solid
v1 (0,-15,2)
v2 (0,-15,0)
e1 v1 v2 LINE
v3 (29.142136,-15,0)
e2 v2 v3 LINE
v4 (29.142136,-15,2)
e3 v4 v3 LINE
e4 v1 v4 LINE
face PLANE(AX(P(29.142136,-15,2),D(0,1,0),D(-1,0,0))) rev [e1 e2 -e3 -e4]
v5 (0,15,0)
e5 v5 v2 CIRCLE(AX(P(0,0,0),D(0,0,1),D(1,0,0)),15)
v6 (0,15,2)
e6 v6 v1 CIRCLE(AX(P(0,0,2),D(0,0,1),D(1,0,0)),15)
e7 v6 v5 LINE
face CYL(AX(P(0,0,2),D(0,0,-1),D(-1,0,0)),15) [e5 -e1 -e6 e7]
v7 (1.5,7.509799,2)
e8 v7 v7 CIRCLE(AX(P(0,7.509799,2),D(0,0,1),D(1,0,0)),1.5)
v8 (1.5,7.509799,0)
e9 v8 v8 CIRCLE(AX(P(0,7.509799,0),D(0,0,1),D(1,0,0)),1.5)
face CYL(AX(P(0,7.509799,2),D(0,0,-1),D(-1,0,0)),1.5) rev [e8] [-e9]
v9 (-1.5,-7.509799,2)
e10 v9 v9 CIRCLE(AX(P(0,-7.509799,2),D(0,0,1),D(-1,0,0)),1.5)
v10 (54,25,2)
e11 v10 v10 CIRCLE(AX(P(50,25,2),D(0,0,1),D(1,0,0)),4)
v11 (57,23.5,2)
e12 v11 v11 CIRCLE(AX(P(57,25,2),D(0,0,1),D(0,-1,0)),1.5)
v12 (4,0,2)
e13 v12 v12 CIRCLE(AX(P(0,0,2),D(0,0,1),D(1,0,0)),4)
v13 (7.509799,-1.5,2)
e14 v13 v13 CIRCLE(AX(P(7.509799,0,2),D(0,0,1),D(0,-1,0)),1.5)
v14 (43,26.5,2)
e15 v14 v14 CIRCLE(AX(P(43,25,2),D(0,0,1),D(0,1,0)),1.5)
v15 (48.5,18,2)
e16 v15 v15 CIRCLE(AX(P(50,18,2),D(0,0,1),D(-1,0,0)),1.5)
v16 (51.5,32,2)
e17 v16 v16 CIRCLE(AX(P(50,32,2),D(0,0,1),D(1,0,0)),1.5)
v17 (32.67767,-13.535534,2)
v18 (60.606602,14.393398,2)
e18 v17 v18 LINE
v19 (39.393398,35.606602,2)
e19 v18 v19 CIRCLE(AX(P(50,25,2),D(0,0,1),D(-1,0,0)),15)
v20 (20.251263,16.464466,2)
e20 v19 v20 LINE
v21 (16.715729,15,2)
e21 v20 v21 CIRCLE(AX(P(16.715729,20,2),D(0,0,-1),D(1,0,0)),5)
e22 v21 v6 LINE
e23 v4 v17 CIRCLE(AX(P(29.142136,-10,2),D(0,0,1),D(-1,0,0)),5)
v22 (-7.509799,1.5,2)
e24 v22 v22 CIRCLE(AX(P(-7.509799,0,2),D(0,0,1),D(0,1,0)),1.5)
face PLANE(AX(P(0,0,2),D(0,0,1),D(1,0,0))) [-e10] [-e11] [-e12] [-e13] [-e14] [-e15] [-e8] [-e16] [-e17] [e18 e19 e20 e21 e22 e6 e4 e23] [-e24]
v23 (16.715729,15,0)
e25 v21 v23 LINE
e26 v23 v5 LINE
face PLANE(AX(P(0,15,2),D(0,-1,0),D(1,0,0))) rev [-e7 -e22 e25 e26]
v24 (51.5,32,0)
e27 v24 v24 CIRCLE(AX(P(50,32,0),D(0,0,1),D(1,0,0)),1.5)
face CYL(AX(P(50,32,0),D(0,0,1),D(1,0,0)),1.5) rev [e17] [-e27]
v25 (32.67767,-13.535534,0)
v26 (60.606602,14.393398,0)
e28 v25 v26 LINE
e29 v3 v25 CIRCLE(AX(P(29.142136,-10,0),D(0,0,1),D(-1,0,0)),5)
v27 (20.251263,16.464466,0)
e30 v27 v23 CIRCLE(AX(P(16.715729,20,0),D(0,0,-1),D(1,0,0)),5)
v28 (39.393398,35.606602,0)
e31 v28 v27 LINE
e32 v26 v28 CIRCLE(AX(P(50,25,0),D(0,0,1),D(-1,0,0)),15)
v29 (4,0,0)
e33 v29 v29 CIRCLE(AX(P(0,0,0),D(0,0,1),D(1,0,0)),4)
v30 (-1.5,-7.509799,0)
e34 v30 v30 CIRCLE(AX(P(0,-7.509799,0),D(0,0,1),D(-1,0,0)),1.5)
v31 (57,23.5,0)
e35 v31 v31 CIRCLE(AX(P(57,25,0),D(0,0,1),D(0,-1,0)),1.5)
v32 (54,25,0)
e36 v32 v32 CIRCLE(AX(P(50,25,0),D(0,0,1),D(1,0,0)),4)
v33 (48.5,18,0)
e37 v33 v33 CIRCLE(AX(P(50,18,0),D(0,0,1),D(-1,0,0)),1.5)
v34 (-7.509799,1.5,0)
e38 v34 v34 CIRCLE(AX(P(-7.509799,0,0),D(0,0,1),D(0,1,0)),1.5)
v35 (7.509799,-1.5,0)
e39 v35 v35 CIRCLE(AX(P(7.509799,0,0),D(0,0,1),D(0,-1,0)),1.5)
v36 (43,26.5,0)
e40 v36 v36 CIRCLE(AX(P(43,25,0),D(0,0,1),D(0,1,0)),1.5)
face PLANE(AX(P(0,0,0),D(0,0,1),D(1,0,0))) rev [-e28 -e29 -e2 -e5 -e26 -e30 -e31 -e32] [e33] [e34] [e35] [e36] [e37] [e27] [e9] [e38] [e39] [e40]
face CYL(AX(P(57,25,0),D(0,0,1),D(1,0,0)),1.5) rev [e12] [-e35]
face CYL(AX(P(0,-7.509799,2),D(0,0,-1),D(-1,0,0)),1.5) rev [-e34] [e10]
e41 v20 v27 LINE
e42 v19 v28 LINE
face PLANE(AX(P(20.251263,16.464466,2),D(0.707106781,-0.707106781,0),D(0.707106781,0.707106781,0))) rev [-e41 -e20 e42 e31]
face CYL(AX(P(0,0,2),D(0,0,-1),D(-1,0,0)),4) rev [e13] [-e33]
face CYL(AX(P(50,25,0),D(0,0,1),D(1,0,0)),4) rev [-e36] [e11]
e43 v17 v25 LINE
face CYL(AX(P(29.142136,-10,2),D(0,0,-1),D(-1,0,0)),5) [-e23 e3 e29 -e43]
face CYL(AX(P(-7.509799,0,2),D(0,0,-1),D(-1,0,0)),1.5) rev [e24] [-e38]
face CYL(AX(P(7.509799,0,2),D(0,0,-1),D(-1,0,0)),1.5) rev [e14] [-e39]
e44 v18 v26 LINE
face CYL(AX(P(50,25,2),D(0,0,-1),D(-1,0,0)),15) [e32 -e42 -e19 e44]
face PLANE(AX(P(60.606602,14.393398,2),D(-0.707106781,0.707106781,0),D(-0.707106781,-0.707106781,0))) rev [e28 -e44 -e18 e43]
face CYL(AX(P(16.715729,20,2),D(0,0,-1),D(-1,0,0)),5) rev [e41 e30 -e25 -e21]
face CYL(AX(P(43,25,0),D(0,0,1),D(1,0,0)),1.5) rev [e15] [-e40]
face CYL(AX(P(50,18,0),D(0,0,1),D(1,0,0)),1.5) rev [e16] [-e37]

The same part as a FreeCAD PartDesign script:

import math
import FreeCAD as App
import Part
import Sketcher
from FreeCAD import Vector
Q = App.Units.Quantity

doc = App.newDocument("Part")
body = doc.addObject("PartDesign::Body", "Body")

# Sketch on XY plane
sketch1 = body.newObject("Sketcher::SketchObject", "Sketch")
sketch1.AttachmentSupport = (doc.getObject("XY_Plane"), [""])
sketch1.MapMode = "FlatFace"
sketch1.addGeometry([
    Part.LineSegment(Vector(16.7, 15, 0), Vector(0, 15, 0)),  # 0
    Part.ArcOfCircle(Part.Circle(Vector(0, 0, 0), Vector(0, 0, 1), 15), math.radians(90), math.radians(270)),  # 1
    Part.LineSegment(Vector(0, -15, 0), Vector(29.1, -15, 0)),  # 2
    Part.ArcOfCircle(Part.Circle(Vector(29.1, -10, 0), Vector(0, 0, 1), 5), math.radians(-90), math.radians(-45)),  # 3
    Part.LineSegment(Vector(32.7, -13.5, 0), Vector(60.6, 14.4, 0)),  # 4
    Part.ArcOfCircle(Part.Circle(Vector(50, 25, 0), Vector(0, 0, 1), 15), math.radians(-45), math.radians(135)),  # 5
    Part.LineSegment(Vector(39.4, 35.6, 0), Vector(20.3, 16.5, 0)),  # 6
    Part.ArcOfCircle(Part.Circle(Vector(16.7, 20, 0), Vector(0, 0, 1), 5), math.radians(-90), math.radians(-45)),  # 7
], False)
sketch1.addConstraint([
    Sketcher.Constraint("Tangent", 0, 2, 1, 1),
    Sketcher.Constraint("Tangent", 1, 2, 2, 1),
    Sketcher.Constraint("Tangent", 2, 2, 3, 1),
    Sketcher.Constraint("Tangent", 3, 2, 4, 1),
    Sketcher.Constraint("Tangent", 4, 2, 5, 1),
    Sketcher.Constraint("Tangent", 5, 2, 6, 1),
    Sketcher.Constraint("Tangent", 6, 2, 7, 2),
    Sketcher.Constraint("Tangent", 7, 1, 0, 1),
    Sketcher.Constraint("Horizontal", 0),
    Sketcher.Constraint("Horizontal", 2),
    Sketcher.Constraint("Coincident", 1, 3, -1, 1),
    Sketcher.Constraint("Equal", 1, 5),
    Sketcher.Constraint("Equal", 3, 7),
    Sketcher.Constraint("Parallel", 4, 6),
    Sketcher.Constraint("Radius", 1, Q("15 mm")),
    Sketcher.Constraint("Radius", 3, Q("5 mm")),
    Sketcher.Constraint("Angle", 4, Q("45 deg")),
    Sketcher.Constraint("DistanceX", -1, 1, 5, 3, Q("50 mm")),
    Sketcher.Constraint("DistanceY", -1, 1, 5, 3, Q("25 mm")),
])
pad1 = body.newObject("PartDesign::Pad", "Pad")
pad1.Profile = sketch1
pad1.Length = 2

# Sketch on XY plane
sketch2 = body.newObject("Sketcher::SketchObject", "Sketch001")
sketch2.AttachmentSupport = (doc.getObject("XY_Plane"), [""])
sketch2.MapMode = "FlatFace"
sketch2.addGeometry(Part.Circle(Vector(0, 0, 0), Vector(0, 0, 1), 4), False)
sketch2.addConstraint([
    Sketcher.Constraint("Coincident", 0, 3, -1, 1),
    Sketcher.Constraint("Diameter", 0, Q("8 mm")),
])
pocket1 = body.newObject("PartDesign::Pocket", "Pocket")
pocket1.Profile = sketch2
pocket1.Length = 2
pocket1.Reversed = True

# Sketch on XY plane
sketch3 = body.newObject("Sketcher::SketchObject", "Sketch002")
sketch3.AttachmentSupport = (doc.getObject("XY_Plane"), [""])
sketch3.MapMode = "FlatFace"
sketch3.addGeometry(Part.Circle(Vector(0, 7.5, 0), Vector(0, 0, 1), 1.5), False)
sketch3.addConstraint([
    Sketcher.Constraint("PointOnObject", 0, 3, -2),
    Sketcher.Constraint("Diameter", 0, Q("3 mm")),
    Sketcher.Constraint("DistanceY", -1, 1, 0, 3, Q("7.509799 mm")),
])
pocket2 = body.newObject("PartDesign::Pocket", "Pocket001")
pocket2.Profile = sketch3
pocket2.Length = 2
pocket2.Reversed = True
doc.recompute()

polarpattern = body.newObject("PartDesign::PolarPattern", "PolarPattern")
polarpattern.Originals = [pocket2]
polarpattern.Axis = (doc.getObject("Z_Axis"), [""])
polarpattern.Angle = 360
polarpattern.Occurrences = 4
body.Tip = polarpattern

# Sketch on XY plane
sketch4 = body.newObject("Sketcher::SketchObject", "Sketch003")
sketch4.AttachmentSupport = (doc.getObject("XY_Plane"), [""])
sketch4.MapMode = "FlatFace"
sketch4.AttachmentOffset = App.Placement(Vector(0, 0, 2), App.Rotation())
sketch4.addGeometry(Part.Circle(Vector(50, 25, 0), Vector(0, 0, 1), 4), False)
sketch4.addConstraint([
    Sketcher.Constraint("Diameter", 0, Q("8 mm")),
    Sketcher.Constraint("DistanceX", -1, 1, 0, 3, Q("50 mm")),
    Sketcher.Constraint("DistanceY", -1, 1, 0, 3, Q("25 mm")),
])
pocket3 = body.newObject("PartDesign::Pocket", "Pocket002")
pocket3.Profile = sketch4
pocket3.Length = 2

# Sketch on XY plane
sketch5 = body.newObject("Sketcher::SketchObject", "Sketch004")
sketch5.AttachmentSupport = (doc.getObject("XY_Plane"), [""])
sketch5.MapMode = "FlatFace"
sketch5.AttachmentOffset = App.Placement(Vector(0, 0, 2), App.Rotation())
sketch5.addGeometry(Part.Circle(Vector(50, 32, 0), Vector(0, 0, 1), 1.5), False)
sketch5.addConstraint([
    Sketcher.Constraint("Diameter", 0, Q("3 mm")),
    Sketcher.Constraint("DistanceX", -1, 1, 0, 3, Q("50 mm")),
    Sketcher.Constraint("DistanceY", -1, 1, 0, 3, Q("32 mm")),
])
pocket4 = body.newObject("PartDesign::Pocket", "Pocket003")
pocket4.Profile = sketch5
pocket4.Length = 2
doc.recompute()

datumline = body.newObject("PartDesign::Line", "DatumLine")
datumline.Placement = App.Placement(Vector(50, 25, 0), App.Rotation(Vector(0, 0, 1), Vector(0, 0, 1)))
polarpattern2 = body.newObject("PartDesign::PolarPattern", "PolarPattern001")
polarpattern2.Originals = [pocket4]
polarpattern2.Axis = (datumline, [""])
polarpattern2.Angle = 360
polarpattern2.Occurrences = 4
body.Tip = polarpattern2

doc.recompute()
